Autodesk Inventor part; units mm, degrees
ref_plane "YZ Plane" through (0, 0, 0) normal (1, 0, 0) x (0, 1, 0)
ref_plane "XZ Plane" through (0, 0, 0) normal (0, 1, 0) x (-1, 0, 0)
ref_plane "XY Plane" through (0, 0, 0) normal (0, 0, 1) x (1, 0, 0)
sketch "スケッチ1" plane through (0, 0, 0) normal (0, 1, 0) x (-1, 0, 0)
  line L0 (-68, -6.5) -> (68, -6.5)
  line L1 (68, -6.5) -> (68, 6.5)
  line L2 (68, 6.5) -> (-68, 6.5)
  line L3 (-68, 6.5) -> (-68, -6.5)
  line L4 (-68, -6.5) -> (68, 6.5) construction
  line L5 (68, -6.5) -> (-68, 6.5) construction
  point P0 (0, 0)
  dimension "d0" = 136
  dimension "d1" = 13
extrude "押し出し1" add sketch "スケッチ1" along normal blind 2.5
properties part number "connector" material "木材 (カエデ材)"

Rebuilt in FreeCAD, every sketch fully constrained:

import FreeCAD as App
import Part
import Sketcher
from FreeCAD import Vector

doc = App.newDocument("Part")
body = doc.addObject("PartDesign::Body", "Body")

# Sketch on XZ plane
sketch1 = body.newObject("Sketcher::SketchObject", "Sketch")
sketch1.AttachmentSupport = (doc.getObject("XZ_Plane"), [""])
sketch1.MapMode = "FlatFace"
sketch1.addGeometry(Part.LineSegment(Vector(68, 6.5, 0), Vector(68, -6.5, 0)), False)
sketch1.addGeometry(Part.LineSegment(Vector(68, -6.5, 0), Vector(-68, -6.5, 0)), False)
sketch1.addGeometry(Part.LineSegment(Vector(-68, -6.5, 0), Vector(-68, 6.5, 0)), False)
sketch1.addGeometry(Part.LineSegment(Vector(-68, 6.5, 0), Vector(68, 6.5, 0)), False)
sketch1.addConstraint(Sketcher.Constraint("Coincident", 0, 2, 1, 1))
sketch1.addConstraint(Sketcher.Constraint("Coincident", 1, 2, 2, 1))
sketch1.addConstraint(Sketcher.Constraint("Coincident", 2, 2, 3, 1))
sketch1.addConstraint(Sketcher.Constraint("Coincident", 3, 2, 0, 1))
sketch1.addConstraint(Sketcher.Constraint("Vertical", 0))
sketch1.addConstraint(Sketcher.Constraint("Horizontal", 1))
sketch1.addConstraint(Sketcher.Constraint("Vertical", 2))
sketch1.addConstraint(Sketcher.Constraint("Horizontal", 3))
sketch1.addConstraint(Sketcher.Constraint("Symmetric", 0, 2, 2, 2, -1, 1))
sketch1.addConstraint(Sketcher.Constraint("DistanceX", 1, 2, 1, 1, 136.0))
sketch1.addConstraint(Sketcher.Constraint("DistanceY", 0, 2, 0, 1, 13.0))
pad1 = body.newObject("PartDesign::Pad", "Pad")
pad1.Profile = sketch1
pad1.Length = 2.5
pad1.Reversed = True

doc.recompute()
